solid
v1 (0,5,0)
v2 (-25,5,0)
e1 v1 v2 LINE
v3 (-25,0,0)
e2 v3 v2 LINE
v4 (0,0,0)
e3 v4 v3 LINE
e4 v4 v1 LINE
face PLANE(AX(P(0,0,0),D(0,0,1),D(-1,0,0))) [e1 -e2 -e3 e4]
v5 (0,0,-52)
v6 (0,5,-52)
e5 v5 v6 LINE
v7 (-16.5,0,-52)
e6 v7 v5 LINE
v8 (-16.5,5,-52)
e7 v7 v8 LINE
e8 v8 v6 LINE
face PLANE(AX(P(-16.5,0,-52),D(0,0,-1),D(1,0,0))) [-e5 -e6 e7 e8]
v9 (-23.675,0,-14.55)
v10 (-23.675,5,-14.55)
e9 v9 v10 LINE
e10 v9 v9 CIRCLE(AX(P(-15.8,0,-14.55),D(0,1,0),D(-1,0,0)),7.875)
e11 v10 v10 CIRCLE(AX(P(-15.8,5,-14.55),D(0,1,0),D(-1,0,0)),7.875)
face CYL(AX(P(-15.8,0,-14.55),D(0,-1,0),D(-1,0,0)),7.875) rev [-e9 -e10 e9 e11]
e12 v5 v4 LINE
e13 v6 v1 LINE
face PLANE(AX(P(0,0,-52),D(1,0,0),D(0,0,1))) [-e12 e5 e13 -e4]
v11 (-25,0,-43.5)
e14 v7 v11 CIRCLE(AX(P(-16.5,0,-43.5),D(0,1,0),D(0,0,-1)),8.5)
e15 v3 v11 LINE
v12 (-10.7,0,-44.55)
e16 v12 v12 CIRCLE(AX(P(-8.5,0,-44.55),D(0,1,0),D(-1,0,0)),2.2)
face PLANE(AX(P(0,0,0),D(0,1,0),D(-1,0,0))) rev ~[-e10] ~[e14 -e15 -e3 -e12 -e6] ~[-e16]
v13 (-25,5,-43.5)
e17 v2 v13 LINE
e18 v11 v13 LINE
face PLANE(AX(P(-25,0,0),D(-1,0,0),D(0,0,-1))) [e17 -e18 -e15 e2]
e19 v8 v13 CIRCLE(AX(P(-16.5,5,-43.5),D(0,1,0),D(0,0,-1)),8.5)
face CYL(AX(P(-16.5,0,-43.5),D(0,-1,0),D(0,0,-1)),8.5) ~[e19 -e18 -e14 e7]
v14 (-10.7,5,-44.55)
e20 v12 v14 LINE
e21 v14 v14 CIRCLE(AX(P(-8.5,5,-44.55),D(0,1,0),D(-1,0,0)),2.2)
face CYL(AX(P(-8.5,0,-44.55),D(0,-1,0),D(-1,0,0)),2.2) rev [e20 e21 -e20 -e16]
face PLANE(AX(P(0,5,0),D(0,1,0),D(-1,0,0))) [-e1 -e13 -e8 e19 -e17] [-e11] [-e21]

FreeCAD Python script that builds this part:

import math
import FreeCAD as App
import Part
import Sketcher
Q = App.Units.Quantity

doc = App.newDocument("Part")
body = doc.addObject("PartDesign::Body", "Body")

# Sketch on XZ plane
sketch1 = body.newObject("Sketcher::SketchObject", "Sketch")
sketch1.AttachmentSupport = (doc.getObject("XZ_Plane"), [""])
sketch1.MapMode = "FlatFace"
sketch1.addGeometry(Part.LineSegment(App.Vector(-25, 0, 0), App.Vector(0, 0, 0)), False)
sketch1.addGeometry(Part.LineSegment(App.Vector(0, 0, 0), App.Vector(0, -52, 0)), False)
sketch1.addGeometry(Part.LineSegment(App.Vector(0, -52, 0), App.Vector(-16.5, -52, 0)), False)
sketch1.addGeometry(Part.ArcOfCircle(Part.Circle(App.Vector(-16.5, -43.5, 0), App.Vector(0, 0, 1), 8.5), math.radians(180), math.radians(270)), False)
sketch1.addGeometry(Part.LineSegment(App.Vector(-25, -43.5, 0), App.Vector(-25, 0, 0)), False)
sketch1.addGeometry(Part.Circle(App.Vector(-8.5, -44.5, 0), App.Vector(0, 0, 1), 2.2), False)
sketch1.addGeometry(Part.Circle(App.Vector(-15.8, -14.6, 0), App.Vector(0, 0, 1), 7.9), False)
sketch1.addConstraint(Sketcher.Constraint("Coincident", 0, 2, 1, 1))
sketch1.addConstraint(Sketcher.Constraint("Coincident", 1, 2, 2, 1))
sketch1.addConstraint(Sketcher.Constraint("Tangent", 2, 2, 3, 2))
sketch1.addConstraint(Sketcher.Constraint("Tangent", 3, 1, 4, 1))
sketch1.addConstraint(Sketcher.Constraint("Coincident", 4, 2, 0, 1))
sketch1.addConstraint(Sketcher.Constraint("Horizontal", 0))
sketch1.addConstraint(Sketcher.Constraint("Vertical", 1))
sketch1.addConstraint(Sketcher.Constraint("Horizontal", 2))
sketch1.addConstraint(Sketcher.Constraint("Vertical", 4))
sketch1.addConstraint(Sketcher.Constraint("Coincident", 0, 2, -1, 1))
sketch1.addConstraint(Sketcher.Constraint("Diameter", 5, Q("4.4 mm")))
sketch1.addConstraint(Sketcher.Constraint("Radius", 3, Q("8.5 mm")))
sketch1.addConstraint(Sketcher.Constraint("Diameter", 6, Q("15.75 mm")))
sketch1.addConstraint(Sketcher.Constraint("DistanceX", 0, 1, 0, 2, Q("25 mm")))
sketch1.addConstraint(Sketcher.Constraint("DistanceY", 1, 2, 1, 1, Q("52 mm")))
sketch1.addConstraint(Sketcher.Constraint("DistanceY", 5, 3, 6, 3, Q("30 mm")))
sketch1.addConstraint(Sketcher.Constraint("DistanceX", 5, 3, -1, 1, Q("8.5 mm")))
sketch1.addConstraint(Sketcher.Constraint("DistanceX", 3, 1, 6, 3, Q("9.2 mm")))
sketch1.addConstraint(Sketcher.Constraint("DistanceY", 1, 2, 5, 3, Q("7.45 mm")))
pad1 = body.newObject("PartDesign::Pad", "Pad")
pad1.Profile = sketch1
pad1.Length = 5
pad1.Reversed = True

doc.recompute()
